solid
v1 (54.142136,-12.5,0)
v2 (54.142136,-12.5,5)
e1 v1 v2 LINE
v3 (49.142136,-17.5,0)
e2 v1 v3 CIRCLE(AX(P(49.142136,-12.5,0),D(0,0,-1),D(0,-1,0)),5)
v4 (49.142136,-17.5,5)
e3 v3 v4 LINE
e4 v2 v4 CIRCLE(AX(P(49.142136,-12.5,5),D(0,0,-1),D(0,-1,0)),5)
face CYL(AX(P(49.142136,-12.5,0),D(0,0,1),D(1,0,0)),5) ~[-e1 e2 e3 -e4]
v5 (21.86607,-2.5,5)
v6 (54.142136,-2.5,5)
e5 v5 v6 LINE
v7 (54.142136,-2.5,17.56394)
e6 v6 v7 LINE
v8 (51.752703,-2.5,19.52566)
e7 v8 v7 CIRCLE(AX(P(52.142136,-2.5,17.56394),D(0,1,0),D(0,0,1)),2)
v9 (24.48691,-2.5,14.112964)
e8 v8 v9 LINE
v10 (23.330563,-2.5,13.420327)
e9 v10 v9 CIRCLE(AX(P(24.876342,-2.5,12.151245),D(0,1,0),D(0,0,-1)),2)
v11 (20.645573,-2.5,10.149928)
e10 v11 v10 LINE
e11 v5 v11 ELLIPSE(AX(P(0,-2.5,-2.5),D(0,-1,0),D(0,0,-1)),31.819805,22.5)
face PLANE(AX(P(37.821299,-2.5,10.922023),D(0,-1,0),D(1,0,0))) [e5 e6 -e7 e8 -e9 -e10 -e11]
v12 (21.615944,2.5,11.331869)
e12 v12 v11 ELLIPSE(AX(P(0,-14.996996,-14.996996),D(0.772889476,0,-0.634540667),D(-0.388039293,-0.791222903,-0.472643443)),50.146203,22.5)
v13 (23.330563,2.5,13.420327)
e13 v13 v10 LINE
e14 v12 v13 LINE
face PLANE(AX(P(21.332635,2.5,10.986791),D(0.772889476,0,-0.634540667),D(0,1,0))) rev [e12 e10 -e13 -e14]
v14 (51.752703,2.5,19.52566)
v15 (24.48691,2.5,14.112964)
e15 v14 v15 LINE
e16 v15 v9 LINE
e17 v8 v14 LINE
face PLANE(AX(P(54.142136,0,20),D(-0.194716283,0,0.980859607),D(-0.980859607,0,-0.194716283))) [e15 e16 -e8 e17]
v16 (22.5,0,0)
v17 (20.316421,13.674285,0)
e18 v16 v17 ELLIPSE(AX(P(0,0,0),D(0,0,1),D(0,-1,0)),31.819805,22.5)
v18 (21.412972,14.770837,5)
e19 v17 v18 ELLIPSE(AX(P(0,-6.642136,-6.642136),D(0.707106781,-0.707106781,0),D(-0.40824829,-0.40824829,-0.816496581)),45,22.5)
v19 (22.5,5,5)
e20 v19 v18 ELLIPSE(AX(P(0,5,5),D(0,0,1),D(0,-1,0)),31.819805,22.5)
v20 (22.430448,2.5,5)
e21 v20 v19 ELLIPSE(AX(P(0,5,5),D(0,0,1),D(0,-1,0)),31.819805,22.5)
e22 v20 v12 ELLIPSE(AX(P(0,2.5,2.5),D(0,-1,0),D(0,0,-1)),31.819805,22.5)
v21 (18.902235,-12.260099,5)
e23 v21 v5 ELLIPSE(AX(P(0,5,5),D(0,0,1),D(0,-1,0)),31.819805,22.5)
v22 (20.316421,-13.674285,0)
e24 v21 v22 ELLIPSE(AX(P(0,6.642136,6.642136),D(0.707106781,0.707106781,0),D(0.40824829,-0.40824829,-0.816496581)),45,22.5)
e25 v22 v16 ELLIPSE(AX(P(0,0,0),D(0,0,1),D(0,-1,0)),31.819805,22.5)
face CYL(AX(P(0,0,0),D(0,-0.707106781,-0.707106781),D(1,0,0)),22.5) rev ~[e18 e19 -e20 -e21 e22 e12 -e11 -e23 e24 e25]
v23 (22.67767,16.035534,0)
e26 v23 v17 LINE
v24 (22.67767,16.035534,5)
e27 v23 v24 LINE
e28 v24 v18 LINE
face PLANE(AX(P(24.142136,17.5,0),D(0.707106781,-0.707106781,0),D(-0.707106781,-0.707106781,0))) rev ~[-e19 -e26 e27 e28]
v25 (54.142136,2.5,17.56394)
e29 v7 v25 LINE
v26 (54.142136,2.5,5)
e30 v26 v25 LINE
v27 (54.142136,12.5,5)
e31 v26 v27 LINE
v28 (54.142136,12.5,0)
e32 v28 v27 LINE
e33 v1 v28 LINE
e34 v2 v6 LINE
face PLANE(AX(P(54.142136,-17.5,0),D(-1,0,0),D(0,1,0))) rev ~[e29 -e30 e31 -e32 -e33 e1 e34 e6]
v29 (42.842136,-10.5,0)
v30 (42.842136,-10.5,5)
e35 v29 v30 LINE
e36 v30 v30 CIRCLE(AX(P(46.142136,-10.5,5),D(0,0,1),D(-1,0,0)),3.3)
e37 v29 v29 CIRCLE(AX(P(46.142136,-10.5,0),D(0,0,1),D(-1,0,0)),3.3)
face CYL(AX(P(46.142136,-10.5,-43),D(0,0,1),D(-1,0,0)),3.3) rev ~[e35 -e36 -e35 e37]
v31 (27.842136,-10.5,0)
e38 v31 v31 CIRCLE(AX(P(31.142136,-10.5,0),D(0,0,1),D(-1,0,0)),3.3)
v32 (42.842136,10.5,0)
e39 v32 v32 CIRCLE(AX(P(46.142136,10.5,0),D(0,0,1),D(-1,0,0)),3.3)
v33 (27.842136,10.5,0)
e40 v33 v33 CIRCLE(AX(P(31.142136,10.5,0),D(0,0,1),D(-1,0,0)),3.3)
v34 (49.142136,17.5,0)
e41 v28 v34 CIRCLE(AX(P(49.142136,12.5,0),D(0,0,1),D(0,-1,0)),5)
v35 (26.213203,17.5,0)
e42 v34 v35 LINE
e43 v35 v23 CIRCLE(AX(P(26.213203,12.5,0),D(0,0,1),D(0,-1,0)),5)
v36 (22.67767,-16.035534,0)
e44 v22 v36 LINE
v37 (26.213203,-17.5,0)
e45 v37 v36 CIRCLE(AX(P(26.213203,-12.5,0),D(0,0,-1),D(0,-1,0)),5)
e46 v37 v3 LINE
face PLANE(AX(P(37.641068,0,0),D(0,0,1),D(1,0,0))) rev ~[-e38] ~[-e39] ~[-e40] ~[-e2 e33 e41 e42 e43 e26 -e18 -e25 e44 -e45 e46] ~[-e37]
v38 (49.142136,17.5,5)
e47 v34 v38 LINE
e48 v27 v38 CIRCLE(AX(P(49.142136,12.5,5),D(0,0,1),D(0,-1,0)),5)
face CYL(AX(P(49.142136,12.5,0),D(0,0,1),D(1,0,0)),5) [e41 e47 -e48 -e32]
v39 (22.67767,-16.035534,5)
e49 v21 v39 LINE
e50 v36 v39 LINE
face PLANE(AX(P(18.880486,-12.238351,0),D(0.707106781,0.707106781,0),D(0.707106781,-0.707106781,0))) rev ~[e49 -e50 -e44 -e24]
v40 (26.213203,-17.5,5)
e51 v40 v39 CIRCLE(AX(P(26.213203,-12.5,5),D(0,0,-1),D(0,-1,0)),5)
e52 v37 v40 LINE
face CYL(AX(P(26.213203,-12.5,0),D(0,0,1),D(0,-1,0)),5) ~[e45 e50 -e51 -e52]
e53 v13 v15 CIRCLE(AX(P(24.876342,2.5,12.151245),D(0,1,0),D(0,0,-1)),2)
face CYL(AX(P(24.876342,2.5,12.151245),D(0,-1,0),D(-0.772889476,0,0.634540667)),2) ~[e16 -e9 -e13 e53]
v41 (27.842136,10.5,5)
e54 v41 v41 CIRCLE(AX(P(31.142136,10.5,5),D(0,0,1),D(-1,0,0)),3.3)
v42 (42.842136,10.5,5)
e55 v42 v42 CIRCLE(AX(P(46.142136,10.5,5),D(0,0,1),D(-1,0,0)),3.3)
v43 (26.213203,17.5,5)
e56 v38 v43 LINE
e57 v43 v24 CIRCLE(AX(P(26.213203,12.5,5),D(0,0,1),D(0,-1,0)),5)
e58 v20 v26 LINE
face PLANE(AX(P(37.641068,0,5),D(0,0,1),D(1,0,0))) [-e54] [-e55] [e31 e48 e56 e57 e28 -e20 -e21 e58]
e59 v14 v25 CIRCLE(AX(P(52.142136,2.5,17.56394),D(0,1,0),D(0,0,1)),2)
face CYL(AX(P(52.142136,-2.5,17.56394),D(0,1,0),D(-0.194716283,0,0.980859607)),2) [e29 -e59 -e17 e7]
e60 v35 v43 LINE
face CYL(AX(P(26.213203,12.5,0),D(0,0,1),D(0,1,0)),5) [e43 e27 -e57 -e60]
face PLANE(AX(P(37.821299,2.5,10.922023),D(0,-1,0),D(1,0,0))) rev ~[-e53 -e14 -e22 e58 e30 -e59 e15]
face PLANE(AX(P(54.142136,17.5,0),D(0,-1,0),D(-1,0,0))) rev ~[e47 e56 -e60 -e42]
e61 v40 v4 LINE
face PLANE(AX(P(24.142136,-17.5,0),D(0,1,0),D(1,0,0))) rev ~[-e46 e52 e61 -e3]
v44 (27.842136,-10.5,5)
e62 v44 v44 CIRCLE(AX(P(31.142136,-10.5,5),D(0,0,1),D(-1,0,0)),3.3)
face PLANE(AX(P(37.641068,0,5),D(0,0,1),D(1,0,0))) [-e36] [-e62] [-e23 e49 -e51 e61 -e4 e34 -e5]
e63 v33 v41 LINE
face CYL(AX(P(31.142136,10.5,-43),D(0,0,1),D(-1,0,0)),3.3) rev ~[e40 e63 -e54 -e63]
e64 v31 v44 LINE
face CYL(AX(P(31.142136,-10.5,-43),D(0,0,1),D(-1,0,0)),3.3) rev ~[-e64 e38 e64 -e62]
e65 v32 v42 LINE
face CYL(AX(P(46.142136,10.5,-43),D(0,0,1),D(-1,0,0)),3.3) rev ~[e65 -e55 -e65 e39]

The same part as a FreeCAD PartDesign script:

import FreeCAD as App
import Part
import Sketcher
from FreeCAD import Vector


def edges_at(feature, points):
    """Names of the edges that pass closest to the given points."""
    edges = feature.Shape.Edges
    near = lambda p: min(range(len(edges)), key=lambda i: edges[i].distToShape(Part.Vertex(*p))[0])
    return sorted({f"Edge{near(p) + 1}" for p in points})

doc = App.newDocument("Part")
body = doc.addObject("PartDesign::Body", "Body")

# Sketch on XY plane
sketch1 = doc.addObject("Sketcher::SketchObject", "Sketch")
body.addObject(sketch1)
sketch1.AttachmentSupport = (doc.XY_Plane, [""])
sketch1.MapMode = "FlatFace"
sketch1.addGeometry([
    Part.LineSegment(Vector(54.142136, 17.5, 0), Vector(24.142136, 17.5, 0)),  # 0
    Part.LineSegment(Vector(24.142136, 17.5, 0), Vector(18.880486, 12.238351, 0)),  # 1
    Part.LineSegment(Vector(18.880486, 12.238351, 0), Vector(18.880486, -12.238351, 0)),  # 2
    Part.LineSegment(Vector(18.880486, -12.238351, 0), Vector(24.142136, -17.5, 0)),  # 3
    Part.LineSegment(Vector(24.142136, -17.5, 0), Vector(54.142136, -17.5, 0)),  # 4
    Part.LineSegment(Vector(54.142136, -17.5, 0), Vector(54.142136, 17.5, 0)),  # 5
], False)
sketch1.addConstraint([
    Sketcher.Constraint("Coincident", 0, 2, 1, 1),
    Sketcher.Constraint("Coincident", 1, 2, 2, 1),
    Sketcher.Constraint("Coincident", 2, 2, 3, 1),
    Sketcher.Constraint("Coincident", 3, 2, 4, 1),
    Sketcher.Constraint("Coincident", 4, 2, 5, 1),
    Sketcher.Constraint("Coincident", 5, 2, 0, 1),
    Sketcher.Constraint("Horizontal", 0),
    Sketcher.Constraint("Vertical", 2),
    Sketcher.Constraint("Horizontal", 4),
    Sketcher.Constraint("Vertical", 5),
    Sketcher.Constraint("Symmetric", 0, 2, 3, 2, -1),
    Sketcher.Constraint("Perpendicular", 1, 3),
    Sketcher.Constraint("Equal", 1, 3),
    Sketcher.Constraint("DistanceX", 0, 2, 0, 1, 30.0),
    Sketcher.Constraint("DistanceY", 5, 1, 5, 2, 35.0),
    Sketcher.Constraint("DistanceY", 2, 2, 2, 1, 24.476702),
    Sketcher.Constraint("DistanceX", -1, 1, 0, 2, 24.142136),
])
pad1 = doc.addObject("PartDesign::Pad", "Pad")
body.addObject(pad1)
pad1.Profile = sketch1
pad1.Length = 5

# Sketch on XZ plane
sketch2 = doc.addObject("Sketcher::SketchObject", "Sketch001")
body.addObject(sketch2)
sketch2.AttachmentSupport = (doc.XZ_Plane, [""])
sketch2.MapMode = "FlatFace"
sketch2.addGeometry([
    Part.LineSegment(Vector(54.142136, 20, 0), Vector(18.880486, 13, 0)),
    Part.LineSegment(Vector(18.880486, 13, 0), Vector(18.880486, 5, 0)),
    Part.LineSegment(Vector(18.880486, 5, 0), Vector(54.142136, 5, 0)),
    Part.LineSegment(Vector(54.142136, 5, 0), Vector(54.142136, 20, 0)),
], False)
sketch2.addConstraint([
    Sketcher.Constraint("Coincident", 0, 2, 1, 1),
    Sketcher.Constraint("Coincident", 1, 2, 2, 1),
    Sketcher.Constraint("Coincident", 2, 2, 3, 1),
    Sketcher.Constraint("Coincident", 3, 2, 0, 1),
    Sketcher.Constraint("Vertical", 1),
    Sketcher.Constraint("Horizontal", 2),
    Sketcher.Constraint("Vertical", 3),
    Sketcher.Constraint("DistanceY", 1, 2, 1, 1, 8.0),
    Sketcher.Constraint("DistanceY", 3, 1, 3, 2, 15.0),
    Sketcher.Constraint("DistanceY", -1, 1, 0, 2, 13.0),
    Sketcher.Constraint("DistanceX", 2, 1, 2, 2, 35.261649),
    Sketcher.Constraint("DistanceX", -1, 1, 0, 2, 18.880486),
])
pad2 = doc.addObject("PartDesign::Pad", "Pad001")
body.addObject(pad2)
pad2.Profile = sketch2
pad2.Length = 5
pad2.Midplane = True
doc.recompute()

chamfer = doc.addObject("PartDesign::Chamfer", "Chamfer")
body.addObject(chamfer)
chamfer.Base = (pad2, edges_at(pad2, [(18.88, 0, 13)]))
chamfer.Size = 5
doc.recompute()

fillet = doc.addObject("PartDesign::Fillet", "Fillet")
body.addObject(fillet)
fillet.Base = (chamfer, edges_at(chamfer, [(23.785, 0, 13.974)]))
fillet.Radius = 2
doc.recompute()

fillet2 = doc.addObject("PartDesign::Fillet", "Fillet001")
body.addObject(fillet2)
fillet2.Base = (fillet, edges_at(fillet, [(54.142, 0, 20)]))
fillet2.Radius = 2

# Sketch on XY plane
sketch3 = doc.addObject("Sketcher::SketchObject", "Sketch002")
body.addObject(sketch3)
sketch3.AttachmentSupport = (doc.XY_Plane, [""])
sketch3.MapMode = "FlatFace"
sketch3.addGeometry([
    Part.Circle(Vector(31.142136, 10.5, 0), Vector(0, 0, 1), 3.3),
    Part.Circle(Vector(46.142136, 10.5, 0), Vector(0, 0, 1), 3.3),
    Part.Circle(Vector(46.142136, -10.5, 0), Vector(0, 0, 1), 3.3),
    Part.Circle(Vector(31.142136, -10.5, 0), Vector(0, 0, 1), 3.3),
], False)
sketch3.addConstraint([
    Sketcher.Constraint("Equal", 0, 1),
    Sketcher.Constraint("Equal", 1, 2),
    Sketcher.Constraint("Equal", 2, 3),
    Sketcher.Constraint("Symmetric", 1, 3, 2, 3, -1),
    Sketcher.Constraint("Symmetric", 0, 3, 3, 3, -1),
    Sketcher.Constraint("Horizontal", 0, 3, 1, 3),
    Sketcher.Constraint("Diameter", 0, 6.6),
    Sketcher.Constraint("DistanceX", 0, 3, 1, 3, 15.0),
    Sketcher.Constraint("DistanceY", 2, 3, 1, 3, 21.0),
    Sketcher.Constraint("DistanceX", -1, 1, 0, 3, 31.142136),
])
doc.recompute()
hole = doc.addObject("PartDesign::Hole", "Hole")
body.addObject(hole)
hole.Profile = sketch3
hole.ThreadType = "None"
hole.Diameter = 6.6
hole.DepthType = "Dimension"
hole.Depth = 43
hole.DrillPoint = "Angled"
hole.DrillPointAngle = 118
hole.Reversed = True
doc.recompute()

fillet3 = doc.addObject("PartDesign::Fillet", "Fillet002")
body.addObject(fillet3)
fillet3.Base = (hole, edges_at(hole, [
    (24.142, -17.5, 2.5),
    (24.142, 17.5, 2.5),
    (54.142, -17.5, 2.5),
    (54.142, 17.5, 2.5),
]))
fillet3.Radius = 5

# Sketch on an angled plane
sketch4 = doc.addObject("Sketcher::SketchObject", "Sketch003")
body.addObject(sketch4)
sketch4.Placement = App.Placement(Vector(0, 0, 0), App.Rotation(Vector(1, 0, 0), Vector(0, -0.707106781, 0.707106781), Vector(0, -0.707106781, -0.707106781), "ZXY"))
sketch4.addGeometry(Part.Circle(Vector(0, 0, 0), Vector(0, 0, 1), 22.5), False)
sketch4.addConstraint([
    Sketcher.Constraint("Coincident", 0, 3, -1, 1),
    Sketcher.Constraint("Diameter", 0, 45.0),
])
pocket1 = doc.addObject("PartDesign::Pocket", "Pocket")
body.addObject(pocket1)
pocket1.Profile = sketch4
pocket1.Length = 50
pocket1.Midplane = True

doc.recompute()
